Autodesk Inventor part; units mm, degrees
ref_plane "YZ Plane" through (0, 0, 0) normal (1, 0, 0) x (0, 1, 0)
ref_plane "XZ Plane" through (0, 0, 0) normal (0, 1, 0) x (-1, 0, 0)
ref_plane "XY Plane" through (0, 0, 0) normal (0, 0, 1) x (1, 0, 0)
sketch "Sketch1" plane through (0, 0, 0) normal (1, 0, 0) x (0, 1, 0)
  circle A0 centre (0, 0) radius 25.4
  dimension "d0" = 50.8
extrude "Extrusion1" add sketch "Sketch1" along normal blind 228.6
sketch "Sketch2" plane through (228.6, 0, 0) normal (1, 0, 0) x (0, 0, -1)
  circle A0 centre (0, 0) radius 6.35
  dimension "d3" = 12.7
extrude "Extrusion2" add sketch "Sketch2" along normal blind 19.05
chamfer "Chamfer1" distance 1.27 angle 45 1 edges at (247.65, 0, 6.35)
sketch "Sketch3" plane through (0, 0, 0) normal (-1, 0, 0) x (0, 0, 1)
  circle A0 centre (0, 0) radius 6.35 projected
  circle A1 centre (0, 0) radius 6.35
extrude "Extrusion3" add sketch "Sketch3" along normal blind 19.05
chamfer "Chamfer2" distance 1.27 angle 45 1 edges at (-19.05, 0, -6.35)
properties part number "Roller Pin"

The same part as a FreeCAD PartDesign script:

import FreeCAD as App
import Part
import Sketcher

V = App.Vector
Q = App.Units.Quantity


def edges_at(feature, points):
    """Names of the edges that pass closest to the given points."""
    edges = feature.Shape.Edges
    near = lambda p: min(range(len(edges)), key=lambda i: edges[i].distToShape(Part.Vertex(*p))[0])
    return sorted({f"Edge{near(p) + 1}" for p in points})

doc = App.newDocument("Part")
body = doc.addObject("PartDesign::Body", "Body")

# Sketch on YZ plane
sketch1 = body.newObject("Sketcher::SketchObject", "Sketch")
sketch1.AttachmentSupport = (doc.getObject("YZ_Plane"), [""])
sketch1.MapMode = "FlatFace"
sketch1.addGeometry(Part.Circle(V(0, 0, 0), V(0, 0, 1), 25), False)
sketch1.addConstraint([
    Sketcher.Constraint("Coincident", 0, 3, -1, 1),
    Sketcher.Constraint("Diameter", 0, Q("2 in")),
])
pad1 = body.newObject("PartDesign::Pad", "Pad")
pad1.Profile = sketch1
pad1.Length = Q("9 in")

# Sketch on YZ plane
sketch2 = body.newObject("Sketcher::SketchObject", "Sketch001")
sketch2.AttachmentSupport = (doc.getObject("YZ_Plane"), [""])
sketch2.MapMode = "FlatFace"
sketch2.AttachmentOffset = App.Placement(V(0, 0, 9 * 25.4), App.Rotation())
sketch2.addGeometry(Part.Circle(V(0, 0, 0), V(0, 0, 1), 6), False)
sketch2.addConstraint([
    Sketcher.Constraint("Coincident", 0, 3, -1, 1),
    Sketcher.Constraint("Diameter", 0, Q("0.5 in")),
])
pad2 = body.newObject("PartDesign::Pad", "Pad001")
pad2.Profile = sketch2
pad2.Length = Q("0.75 in")
doc.recompute()

chamfer = body.newObject("PartDesign::Chamfer", "Chamfer")
chamfer.Base = (pad2, edges_at(pad2, [(247.65, 0, 6.35)]))
chamfer.Size = Q("0.05 in")

# Sketch on YZ plane
sketch3 = body.newObject("Sketcher::SketchObject", "Sketch002")
sketch3.AttachmentSupport = (doc.getObject("YZ_Plane"), [""])
sketch3.MapMode = "FlatFace"
sketch3.addGeometry(Part.Circle(V(0, 0, 0), V(0, 0, 1), 6), False)
sketch3.addConstraint([
    Sketcher.Constraint("Coincident", 0, 3, -1, 1),
    Sketcher.Constraint("Diameter", 0, Q("0.5 in")),
])
pad3 = body.newObject("PartDesign::Pad", "Pad002")
pad3.Profile = sketch3
pad3.Length = Q("0.75 in")
pad3.Reversed = True
doc.recompute()

chamfer2 = body.newObject("PartDesign::Chamfer", "Chamfer001")
chamfer2.Base = (pad3, edges_at(pad3, [(-19.05, 0, -6.35)]))
chamfer2.Size = Q("0.05 in")

doc.recompute()
